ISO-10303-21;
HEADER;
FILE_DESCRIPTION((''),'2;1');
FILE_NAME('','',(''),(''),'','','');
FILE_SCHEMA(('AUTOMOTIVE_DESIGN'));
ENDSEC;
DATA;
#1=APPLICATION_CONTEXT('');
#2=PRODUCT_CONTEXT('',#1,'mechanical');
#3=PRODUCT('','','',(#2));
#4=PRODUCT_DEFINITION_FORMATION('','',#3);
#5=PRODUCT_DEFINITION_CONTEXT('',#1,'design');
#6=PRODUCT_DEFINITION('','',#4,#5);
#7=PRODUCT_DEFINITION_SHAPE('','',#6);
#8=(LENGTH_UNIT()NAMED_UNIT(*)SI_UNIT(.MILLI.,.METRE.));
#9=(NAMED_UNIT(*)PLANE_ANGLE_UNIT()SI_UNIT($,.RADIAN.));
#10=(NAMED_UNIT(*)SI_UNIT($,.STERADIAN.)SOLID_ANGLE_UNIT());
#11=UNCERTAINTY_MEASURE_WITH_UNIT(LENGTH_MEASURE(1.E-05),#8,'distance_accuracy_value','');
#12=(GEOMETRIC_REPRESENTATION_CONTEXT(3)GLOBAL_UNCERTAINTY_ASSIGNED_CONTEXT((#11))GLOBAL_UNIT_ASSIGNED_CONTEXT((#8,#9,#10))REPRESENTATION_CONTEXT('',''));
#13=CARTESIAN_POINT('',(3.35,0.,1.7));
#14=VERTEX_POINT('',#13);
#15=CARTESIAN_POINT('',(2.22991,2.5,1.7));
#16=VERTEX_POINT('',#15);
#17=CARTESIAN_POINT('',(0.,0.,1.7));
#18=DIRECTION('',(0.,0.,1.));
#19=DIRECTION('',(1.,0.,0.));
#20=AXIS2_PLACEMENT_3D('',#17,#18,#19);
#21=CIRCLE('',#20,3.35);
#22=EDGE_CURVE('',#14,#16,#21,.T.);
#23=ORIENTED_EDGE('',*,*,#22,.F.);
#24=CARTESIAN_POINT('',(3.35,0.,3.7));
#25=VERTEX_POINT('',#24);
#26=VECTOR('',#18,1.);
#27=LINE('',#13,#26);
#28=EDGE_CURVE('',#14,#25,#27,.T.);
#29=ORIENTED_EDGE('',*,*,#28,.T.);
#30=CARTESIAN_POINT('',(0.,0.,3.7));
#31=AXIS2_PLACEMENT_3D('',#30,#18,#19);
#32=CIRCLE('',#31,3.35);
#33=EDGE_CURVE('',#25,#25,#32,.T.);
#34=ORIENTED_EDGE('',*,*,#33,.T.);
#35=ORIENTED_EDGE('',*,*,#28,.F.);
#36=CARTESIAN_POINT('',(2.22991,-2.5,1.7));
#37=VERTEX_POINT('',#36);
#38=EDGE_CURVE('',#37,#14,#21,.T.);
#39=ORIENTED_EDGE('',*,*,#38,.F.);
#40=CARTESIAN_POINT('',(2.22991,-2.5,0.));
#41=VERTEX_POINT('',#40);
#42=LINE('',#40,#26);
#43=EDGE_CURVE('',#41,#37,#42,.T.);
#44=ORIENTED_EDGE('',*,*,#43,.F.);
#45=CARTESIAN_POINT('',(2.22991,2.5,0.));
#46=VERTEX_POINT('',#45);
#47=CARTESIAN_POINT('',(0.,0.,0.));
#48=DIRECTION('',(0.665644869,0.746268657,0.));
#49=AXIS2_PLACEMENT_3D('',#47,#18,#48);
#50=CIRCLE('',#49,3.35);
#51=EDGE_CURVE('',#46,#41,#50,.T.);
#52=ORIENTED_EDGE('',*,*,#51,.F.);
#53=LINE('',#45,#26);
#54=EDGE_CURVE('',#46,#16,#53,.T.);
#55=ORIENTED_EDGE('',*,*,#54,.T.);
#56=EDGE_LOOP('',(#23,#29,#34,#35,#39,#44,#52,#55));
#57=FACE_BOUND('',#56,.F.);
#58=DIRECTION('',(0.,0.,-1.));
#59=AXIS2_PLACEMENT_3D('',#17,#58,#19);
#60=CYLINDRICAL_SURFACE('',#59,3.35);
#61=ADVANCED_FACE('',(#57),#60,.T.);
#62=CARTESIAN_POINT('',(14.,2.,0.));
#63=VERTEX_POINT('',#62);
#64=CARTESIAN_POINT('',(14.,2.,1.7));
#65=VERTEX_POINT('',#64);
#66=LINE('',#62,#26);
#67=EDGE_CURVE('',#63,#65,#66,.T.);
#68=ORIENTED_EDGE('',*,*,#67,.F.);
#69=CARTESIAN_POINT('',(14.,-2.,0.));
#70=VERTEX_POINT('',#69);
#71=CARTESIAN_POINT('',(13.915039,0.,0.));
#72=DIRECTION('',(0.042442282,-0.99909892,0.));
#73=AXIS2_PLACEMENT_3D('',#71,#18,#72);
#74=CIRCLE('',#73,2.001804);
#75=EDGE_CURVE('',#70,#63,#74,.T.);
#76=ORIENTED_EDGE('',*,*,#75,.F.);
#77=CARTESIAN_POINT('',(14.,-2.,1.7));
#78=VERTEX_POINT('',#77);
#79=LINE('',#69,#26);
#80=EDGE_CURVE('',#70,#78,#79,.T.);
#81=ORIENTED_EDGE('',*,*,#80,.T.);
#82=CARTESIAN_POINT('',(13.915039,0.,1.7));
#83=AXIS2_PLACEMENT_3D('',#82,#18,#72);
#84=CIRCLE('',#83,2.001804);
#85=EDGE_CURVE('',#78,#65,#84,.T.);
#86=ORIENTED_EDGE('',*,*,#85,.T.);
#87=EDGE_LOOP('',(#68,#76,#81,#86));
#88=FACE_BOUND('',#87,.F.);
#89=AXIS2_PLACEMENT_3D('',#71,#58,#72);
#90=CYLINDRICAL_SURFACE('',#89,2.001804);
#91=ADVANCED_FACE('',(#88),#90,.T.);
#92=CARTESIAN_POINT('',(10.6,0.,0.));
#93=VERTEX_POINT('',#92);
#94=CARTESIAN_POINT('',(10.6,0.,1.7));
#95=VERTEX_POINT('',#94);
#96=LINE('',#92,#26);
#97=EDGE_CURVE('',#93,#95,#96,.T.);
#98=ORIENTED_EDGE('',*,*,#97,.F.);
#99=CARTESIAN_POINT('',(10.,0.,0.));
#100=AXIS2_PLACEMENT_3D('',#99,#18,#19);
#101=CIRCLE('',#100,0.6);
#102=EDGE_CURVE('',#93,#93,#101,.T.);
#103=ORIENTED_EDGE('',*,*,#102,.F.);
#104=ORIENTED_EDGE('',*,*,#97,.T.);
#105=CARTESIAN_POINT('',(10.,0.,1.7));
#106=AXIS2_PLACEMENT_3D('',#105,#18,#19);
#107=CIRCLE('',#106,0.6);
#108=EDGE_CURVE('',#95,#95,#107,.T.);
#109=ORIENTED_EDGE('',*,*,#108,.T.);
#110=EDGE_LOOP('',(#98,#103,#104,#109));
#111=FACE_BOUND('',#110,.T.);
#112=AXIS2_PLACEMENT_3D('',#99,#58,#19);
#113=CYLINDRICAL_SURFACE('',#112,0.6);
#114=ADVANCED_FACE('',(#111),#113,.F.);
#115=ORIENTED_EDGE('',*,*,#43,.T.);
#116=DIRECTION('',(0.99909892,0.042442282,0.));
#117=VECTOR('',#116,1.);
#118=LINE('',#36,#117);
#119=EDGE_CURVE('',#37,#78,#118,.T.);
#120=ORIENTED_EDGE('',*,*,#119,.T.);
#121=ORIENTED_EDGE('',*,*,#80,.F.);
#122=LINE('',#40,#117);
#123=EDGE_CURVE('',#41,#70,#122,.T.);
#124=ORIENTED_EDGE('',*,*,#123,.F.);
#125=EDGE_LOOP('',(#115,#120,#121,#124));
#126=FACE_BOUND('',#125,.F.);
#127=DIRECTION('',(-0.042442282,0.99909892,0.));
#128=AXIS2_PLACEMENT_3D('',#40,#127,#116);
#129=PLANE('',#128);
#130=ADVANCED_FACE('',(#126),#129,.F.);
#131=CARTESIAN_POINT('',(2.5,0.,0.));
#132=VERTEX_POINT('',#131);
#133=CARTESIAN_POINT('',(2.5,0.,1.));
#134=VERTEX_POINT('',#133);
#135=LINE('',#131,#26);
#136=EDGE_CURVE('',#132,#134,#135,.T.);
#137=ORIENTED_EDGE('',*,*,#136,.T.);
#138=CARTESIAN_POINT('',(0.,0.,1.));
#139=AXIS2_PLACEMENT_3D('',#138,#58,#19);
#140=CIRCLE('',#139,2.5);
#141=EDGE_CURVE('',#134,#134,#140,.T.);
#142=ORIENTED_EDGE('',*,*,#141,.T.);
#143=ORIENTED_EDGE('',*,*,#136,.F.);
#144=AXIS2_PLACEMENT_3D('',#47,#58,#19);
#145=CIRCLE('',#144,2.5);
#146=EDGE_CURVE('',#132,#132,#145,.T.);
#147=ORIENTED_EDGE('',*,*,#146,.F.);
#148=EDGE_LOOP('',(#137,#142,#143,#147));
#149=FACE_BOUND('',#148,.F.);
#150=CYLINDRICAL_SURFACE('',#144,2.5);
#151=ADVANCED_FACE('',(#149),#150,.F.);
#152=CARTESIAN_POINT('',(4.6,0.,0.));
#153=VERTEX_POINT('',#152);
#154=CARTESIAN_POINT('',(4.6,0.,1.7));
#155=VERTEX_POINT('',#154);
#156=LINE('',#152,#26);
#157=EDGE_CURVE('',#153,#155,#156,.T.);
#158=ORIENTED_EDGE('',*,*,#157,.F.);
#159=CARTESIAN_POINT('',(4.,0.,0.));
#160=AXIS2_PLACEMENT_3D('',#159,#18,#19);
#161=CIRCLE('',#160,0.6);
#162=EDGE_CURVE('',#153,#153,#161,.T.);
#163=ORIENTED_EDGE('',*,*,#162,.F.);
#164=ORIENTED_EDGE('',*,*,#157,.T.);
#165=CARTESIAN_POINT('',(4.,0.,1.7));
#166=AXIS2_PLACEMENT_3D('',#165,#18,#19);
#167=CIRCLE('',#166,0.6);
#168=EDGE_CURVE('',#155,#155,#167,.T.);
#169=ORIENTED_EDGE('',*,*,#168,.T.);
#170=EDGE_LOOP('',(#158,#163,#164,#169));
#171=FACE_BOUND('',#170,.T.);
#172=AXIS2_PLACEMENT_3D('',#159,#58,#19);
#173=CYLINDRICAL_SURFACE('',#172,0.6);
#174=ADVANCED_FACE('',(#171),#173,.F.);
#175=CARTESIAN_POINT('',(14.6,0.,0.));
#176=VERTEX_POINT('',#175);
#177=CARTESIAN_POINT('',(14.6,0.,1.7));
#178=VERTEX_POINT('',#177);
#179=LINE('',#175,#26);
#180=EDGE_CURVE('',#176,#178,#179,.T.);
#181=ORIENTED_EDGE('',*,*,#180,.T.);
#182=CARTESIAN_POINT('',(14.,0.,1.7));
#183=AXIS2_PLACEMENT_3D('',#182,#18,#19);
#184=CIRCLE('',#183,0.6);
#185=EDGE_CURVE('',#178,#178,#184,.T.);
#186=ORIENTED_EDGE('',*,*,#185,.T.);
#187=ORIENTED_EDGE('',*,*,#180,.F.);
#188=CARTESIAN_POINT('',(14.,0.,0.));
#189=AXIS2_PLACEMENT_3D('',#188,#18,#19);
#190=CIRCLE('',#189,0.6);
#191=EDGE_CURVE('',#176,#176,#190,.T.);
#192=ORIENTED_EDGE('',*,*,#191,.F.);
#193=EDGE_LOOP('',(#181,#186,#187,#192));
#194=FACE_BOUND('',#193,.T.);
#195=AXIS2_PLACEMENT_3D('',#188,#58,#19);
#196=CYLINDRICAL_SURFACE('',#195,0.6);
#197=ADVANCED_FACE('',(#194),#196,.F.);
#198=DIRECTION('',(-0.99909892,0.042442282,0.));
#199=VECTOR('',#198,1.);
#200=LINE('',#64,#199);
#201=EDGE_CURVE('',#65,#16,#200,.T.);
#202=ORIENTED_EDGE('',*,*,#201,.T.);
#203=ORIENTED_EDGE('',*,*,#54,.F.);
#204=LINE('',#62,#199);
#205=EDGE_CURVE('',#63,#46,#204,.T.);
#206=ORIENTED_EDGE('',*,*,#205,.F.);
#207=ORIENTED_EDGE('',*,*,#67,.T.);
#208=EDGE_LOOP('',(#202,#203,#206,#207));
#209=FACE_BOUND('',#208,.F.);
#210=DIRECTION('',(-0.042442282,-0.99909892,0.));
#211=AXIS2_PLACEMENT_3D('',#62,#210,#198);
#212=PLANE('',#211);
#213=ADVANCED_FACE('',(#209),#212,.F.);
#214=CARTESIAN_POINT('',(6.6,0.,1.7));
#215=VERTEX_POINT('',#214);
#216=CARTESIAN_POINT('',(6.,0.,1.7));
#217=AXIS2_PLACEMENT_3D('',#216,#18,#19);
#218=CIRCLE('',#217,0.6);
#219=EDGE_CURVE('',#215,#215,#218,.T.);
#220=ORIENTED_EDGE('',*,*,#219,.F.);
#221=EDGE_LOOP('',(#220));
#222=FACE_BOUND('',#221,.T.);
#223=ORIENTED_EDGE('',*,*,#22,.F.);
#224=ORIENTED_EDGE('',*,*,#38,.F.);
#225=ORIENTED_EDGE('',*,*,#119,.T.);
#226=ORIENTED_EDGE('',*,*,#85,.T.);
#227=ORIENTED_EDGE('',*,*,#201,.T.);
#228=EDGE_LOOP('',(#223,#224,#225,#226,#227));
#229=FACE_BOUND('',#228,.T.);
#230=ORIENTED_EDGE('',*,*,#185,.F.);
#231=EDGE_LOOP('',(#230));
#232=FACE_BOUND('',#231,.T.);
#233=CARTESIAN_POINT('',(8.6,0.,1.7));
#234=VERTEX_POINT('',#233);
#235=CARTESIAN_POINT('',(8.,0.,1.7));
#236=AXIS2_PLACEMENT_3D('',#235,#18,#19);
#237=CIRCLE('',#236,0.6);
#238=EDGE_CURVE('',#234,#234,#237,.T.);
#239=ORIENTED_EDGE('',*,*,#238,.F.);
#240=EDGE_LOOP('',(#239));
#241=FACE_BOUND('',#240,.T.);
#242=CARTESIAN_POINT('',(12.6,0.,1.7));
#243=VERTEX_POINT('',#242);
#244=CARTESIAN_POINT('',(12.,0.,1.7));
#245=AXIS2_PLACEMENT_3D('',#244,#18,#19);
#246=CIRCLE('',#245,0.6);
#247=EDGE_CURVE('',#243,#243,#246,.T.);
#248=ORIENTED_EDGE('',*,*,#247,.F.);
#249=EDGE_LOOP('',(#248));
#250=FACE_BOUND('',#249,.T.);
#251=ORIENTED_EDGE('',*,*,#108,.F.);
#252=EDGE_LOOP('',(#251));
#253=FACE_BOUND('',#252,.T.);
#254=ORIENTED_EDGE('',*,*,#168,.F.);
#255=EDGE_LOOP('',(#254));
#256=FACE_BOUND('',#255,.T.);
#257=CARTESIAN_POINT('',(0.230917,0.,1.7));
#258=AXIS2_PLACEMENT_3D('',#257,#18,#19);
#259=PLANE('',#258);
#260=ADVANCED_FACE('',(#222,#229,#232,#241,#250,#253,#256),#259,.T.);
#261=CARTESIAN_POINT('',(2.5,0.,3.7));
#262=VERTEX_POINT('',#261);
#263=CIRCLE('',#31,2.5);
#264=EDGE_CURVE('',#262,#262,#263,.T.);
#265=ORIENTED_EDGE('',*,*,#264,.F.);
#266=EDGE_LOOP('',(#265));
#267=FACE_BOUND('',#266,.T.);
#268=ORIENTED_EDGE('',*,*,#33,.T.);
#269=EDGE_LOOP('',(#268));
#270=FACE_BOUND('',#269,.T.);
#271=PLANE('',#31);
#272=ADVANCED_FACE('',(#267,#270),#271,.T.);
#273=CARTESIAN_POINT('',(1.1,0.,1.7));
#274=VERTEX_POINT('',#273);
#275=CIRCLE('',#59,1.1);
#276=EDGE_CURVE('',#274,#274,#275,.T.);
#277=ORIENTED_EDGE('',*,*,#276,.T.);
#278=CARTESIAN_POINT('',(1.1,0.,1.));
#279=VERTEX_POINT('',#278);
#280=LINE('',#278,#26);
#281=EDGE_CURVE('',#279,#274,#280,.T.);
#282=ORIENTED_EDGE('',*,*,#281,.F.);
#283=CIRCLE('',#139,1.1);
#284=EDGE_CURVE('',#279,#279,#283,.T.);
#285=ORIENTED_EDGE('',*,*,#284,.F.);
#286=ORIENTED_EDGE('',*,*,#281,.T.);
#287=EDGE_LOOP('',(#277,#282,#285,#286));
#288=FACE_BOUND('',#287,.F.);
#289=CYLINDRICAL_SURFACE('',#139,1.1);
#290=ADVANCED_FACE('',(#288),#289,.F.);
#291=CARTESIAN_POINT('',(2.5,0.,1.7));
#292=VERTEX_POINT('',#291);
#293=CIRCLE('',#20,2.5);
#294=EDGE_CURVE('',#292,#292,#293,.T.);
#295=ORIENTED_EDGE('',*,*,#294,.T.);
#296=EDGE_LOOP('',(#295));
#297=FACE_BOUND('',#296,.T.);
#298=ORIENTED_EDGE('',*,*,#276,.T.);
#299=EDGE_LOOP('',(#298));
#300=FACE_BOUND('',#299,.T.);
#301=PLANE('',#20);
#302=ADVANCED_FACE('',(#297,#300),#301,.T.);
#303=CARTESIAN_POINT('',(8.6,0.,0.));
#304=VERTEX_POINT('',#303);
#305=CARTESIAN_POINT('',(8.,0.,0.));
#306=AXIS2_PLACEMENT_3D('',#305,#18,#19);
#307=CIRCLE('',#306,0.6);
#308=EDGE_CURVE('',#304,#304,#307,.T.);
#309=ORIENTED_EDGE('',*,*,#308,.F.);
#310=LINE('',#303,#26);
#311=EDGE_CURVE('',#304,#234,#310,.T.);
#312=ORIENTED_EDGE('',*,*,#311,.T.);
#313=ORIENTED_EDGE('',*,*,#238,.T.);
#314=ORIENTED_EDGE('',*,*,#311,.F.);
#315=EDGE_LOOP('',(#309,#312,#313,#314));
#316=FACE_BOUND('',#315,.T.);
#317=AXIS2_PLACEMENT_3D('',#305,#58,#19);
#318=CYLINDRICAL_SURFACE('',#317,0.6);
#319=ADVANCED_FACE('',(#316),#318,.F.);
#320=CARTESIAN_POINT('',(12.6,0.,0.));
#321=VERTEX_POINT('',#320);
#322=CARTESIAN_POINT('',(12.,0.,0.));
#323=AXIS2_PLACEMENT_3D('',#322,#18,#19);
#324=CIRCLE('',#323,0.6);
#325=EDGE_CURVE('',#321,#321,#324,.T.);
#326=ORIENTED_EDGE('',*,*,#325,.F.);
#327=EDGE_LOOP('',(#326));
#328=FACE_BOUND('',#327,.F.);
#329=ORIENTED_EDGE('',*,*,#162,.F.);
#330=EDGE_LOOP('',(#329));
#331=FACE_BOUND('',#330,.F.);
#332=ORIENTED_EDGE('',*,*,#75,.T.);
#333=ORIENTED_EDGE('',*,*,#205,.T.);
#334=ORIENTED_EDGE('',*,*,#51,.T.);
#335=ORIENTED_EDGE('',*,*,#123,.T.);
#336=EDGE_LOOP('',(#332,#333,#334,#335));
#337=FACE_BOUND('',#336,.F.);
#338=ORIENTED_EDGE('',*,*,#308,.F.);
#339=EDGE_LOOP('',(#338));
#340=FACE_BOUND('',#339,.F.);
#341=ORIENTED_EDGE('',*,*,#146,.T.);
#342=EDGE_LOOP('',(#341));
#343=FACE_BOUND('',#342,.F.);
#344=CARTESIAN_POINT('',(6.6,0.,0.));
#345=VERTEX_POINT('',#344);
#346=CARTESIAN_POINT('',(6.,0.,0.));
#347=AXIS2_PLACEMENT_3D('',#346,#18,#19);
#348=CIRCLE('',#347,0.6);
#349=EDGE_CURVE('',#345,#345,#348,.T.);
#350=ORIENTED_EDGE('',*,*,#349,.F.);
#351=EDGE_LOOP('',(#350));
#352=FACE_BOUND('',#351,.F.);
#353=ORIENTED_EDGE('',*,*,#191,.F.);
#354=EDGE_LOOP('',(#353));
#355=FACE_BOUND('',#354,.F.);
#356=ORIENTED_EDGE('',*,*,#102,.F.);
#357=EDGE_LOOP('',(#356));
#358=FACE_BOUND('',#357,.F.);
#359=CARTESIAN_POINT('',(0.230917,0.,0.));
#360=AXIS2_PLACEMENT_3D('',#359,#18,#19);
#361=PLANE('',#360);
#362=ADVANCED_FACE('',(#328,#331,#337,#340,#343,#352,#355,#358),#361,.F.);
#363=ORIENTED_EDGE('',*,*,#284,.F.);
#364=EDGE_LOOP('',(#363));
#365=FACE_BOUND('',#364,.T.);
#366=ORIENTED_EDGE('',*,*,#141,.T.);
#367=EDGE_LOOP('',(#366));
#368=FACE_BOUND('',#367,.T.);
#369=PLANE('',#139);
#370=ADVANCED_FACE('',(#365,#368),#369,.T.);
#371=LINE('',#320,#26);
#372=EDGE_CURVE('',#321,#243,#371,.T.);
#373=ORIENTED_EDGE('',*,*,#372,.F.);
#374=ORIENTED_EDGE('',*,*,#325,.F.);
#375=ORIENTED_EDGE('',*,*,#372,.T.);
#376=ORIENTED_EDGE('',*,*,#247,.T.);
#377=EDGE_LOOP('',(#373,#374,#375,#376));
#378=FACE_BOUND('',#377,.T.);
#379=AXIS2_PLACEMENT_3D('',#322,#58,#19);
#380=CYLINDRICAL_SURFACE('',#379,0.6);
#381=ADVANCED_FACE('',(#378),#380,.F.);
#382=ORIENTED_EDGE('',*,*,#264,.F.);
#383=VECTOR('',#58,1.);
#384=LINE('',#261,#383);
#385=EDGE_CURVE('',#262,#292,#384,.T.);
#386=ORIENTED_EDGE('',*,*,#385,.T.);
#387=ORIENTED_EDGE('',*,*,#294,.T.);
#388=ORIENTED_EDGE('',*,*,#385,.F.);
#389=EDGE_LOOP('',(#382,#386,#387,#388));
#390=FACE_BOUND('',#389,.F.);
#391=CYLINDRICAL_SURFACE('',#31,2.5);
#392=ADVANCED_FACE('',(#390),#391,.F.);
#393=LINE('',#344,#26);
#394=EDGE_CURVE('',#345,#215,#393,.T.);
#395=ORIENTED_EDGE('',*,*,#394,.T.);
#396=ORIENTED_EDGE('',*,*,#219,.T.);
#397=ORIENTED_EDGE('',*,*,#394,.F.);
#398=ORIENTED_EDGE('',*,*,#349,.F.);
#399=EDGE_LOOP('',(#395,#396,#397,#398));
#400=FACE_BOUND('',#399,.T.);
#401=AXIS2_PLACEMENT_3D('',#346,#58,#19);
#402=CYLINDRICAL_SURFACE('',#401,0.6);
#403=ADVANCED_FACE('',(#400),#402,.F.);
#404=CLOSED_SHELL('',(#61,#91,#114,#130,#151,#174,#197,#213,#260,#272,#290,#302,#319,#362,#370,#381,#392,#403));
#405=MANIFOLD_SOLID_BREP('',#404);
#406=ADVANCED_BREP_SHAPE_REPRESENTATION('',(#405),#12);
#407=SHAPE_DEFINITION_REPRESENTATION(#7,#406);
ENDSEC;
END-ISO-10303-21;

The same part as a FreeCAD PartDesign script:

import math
import FreeCAD as App
import Part
import Sketcher

doc = App.newDocument("Part")
body = doc.addObject("PartDesign::Body", "Body")

sketch1 = body.newObject("Sketcher::SketchObject", "Sketch")
sketch1.AttachmentSupport = (doc.getObject("XY_Plane"), [""])
sketch1.MapMode = "FlatFace"
sketch1.addGeometry(Part.ArcOfCircle(Part.Circle(App.Vector(0, 0, 0), App.Vector(0, 0, 1), 3.4), math.radians(48), math.radians(312)), False)
sketch1.addGeometry(Part.LineSegment(App.Vector(2.2, -2.5, 0), App.Vector(14, -2, 0)), False)
sketch1.addGeometry(Part.ArcOfCircle(Part.Circle(App.Vector(13.9, 0, 0), App.Vector(0, 0, 1), 2), math.radians(-88), math.radians(88)), False)
sketch1.addGeometry(Part.LineSegment(App.Vector(14, 2, 0), App.Vector(2.2, 2.5, 0)), False)
sketch1.addGeometry(Part.Circle(App.Vector(4, 0, 0), App.Vector(0, 0, 1), 0.6), False)
sketch1.addGeometry(Part.Circle(App.Vector(6, 0, 0), App.Vector(0, 0, 1), 0.6), False)
sketch1.addGeometry(Part.Circle(App.Vector(8, 0, 0), App.Vector(0, 0, 1), 0.6), False)
sketch1.addGeometry(Part.Circle(App.Vector(10, 0, 0), App.Vector(0, 0, 1), 0.6), False)
sketch1.addGeometry(Part.Circle(App.Vector(12, 0, 0), App.Vector(0, 0, 1), 0.6), False)
sketch1.addGeometry(Part.Circle(App.Vector(14, 0, 0), App.Vector(0, 0, 1), 0.6), False)
sketch1.addConstraint(Sketcher.Constraint("Coincident", 0, 2, 1, 1))
sketch1.addConstraint(Sketcher.Constraint("Tangent", 1, 2, 2, 1))
sketch1.addConstraint(Sketcher.Constraint("Tangent", 2, 2, 3, 1))
sketch1.addConstraint(Sketcher.Constraint("Coincident", 3, 2, 0, 1))
sketch1.addConstraint(Sketcher.Constraint("Coincident", 0, 3, -1, 1))
sketch1.addConstraint(Sketcher.Constraint("Equal", 4, 5))
sketch1.addConstraint(Sketcher.Constraint("Equal", 5, 6))
sketch1.addConstraint(Sketcher.Constraint("Equal", 6, 7))
sketch1.addConstraint(Sketcher.Constraint("Equal", 7, 8))
sketch1.addConstraint(Sketcher.Constraint("Equal", 8, 9))
sketch1.addConstraint(Sketcher.Constraint("Symmetric", 1, 2, 2, 2, -1))
sketch1.addConstraint(Sketcher.Constraint("PointOnObject", 4, 3, -1))
sketch1.addConstraint(Sketcher.Constraint("PointOnObject", 5, 3, -1))
sketch1.addConstraint(Sketcher.Constraint("PointOnObject", 6, 3, -1))
sketch1.addConstraint(Sketcher.Constraint("PointOnObject", 7, 3, -1))
sketch1.addConstraint(Sketcher.Constraint("PointOnObject", 8, 3, -1))
sketch1.addConstraint(Sketcher.Constraint("PointOnObject", 9, 3, -1))
sketch1.addConstraint(Sketcher.Constraint("Vertical", 9, 3, 1, 2))
sketch1.addConstraint(Sketcher.Constraint("Diameter", 4, 1.2))
sketch1.addConstraint(Sketcher.Constraint("Radius", 0, 3.35))
sketch1.addConstraint(Sketcher.Constraint("DistanceX", -1, 1, 4, 3, 4.0))
sketch1.addConstraint(Sketcher.Constraint("DistanceX", -1, 1, 5, 3, 6.0))
sketch1.addConstraint(Sketcher.Constraint("DistanceX", -1, 1, 6, 3, 8.0))
sketch1.addConstraint(Sketcher.Constraint("DistanceX", -1, 1, 7, 3, 10.0))
sketch1.addConstraint(Sketcher.Constraint("DistanceX", -1, 1, 8, 3, 12.0))
sketch1.addConstraint(Sketcher.Constraint("DistanceX", -1, 1, 9, 3, 14.0))
sketch1.addConstraint(Sketcher.Constraint("DistanceY", 1, 2, -1, 1, 2.0))
sketch1.addConstraint(Sketcher.Constraint("DistanceY", 0, 2, 3, 2, 5.0))
pad1 = body.newObject("PartDesign::Pad", "Pad")
pad1.Profile = sketch1
pad1.Length = 1.7

sketch2 = body.newObject("Sketcher::SketchObject", "Sketch001")
sketch2.AttachmentSupport = (doc.getObject("XY_Plane"), [""])
sketch2.MapMode = "FlatFace"
sketch2.AttachmentOffset = App.Placement(App.Vector(0, 0, 1.7), App.Rotation())
sketch2.addGeometry(Part.Circle(App.Vector(0, 0, 0), App.Vector(0, 0, 1), 3.4), False)
sketch2.addConstraint(Sketcher.Constraint("Coincident", 0, 3, -1, 1))
sketch2.addConstraint(Sketcher.Constraint("Diameter", 0, 6.7))
pad2 = body.newObject("PartDesign::Pad", "Pad001")
pad2.Profile = sketch2
pad2.Length = 2

sketch3 = body.newObject("Sketcher::SketchObject", "Sketch002")
sketch3.AttachmentSupport = (doc.getObject("XY_Plane"), [""])
sketch3.MapMode = "FlatFace"
sketch3.addGeometry(Part.Circle(App.Vector(0, 0, 0), App.Vector(0, 0, 1), 2.5), False)
sketch3.addConstraint(Sketcher.Constraint("Coincident", 0, 3, -1, 1))
sketch3.addConstraint(Sketcher.Constraint("Diameter", 0, 5.0))
pocket1 = body.newObject("PartDesign::Pocket", "Pocket")
pocket1.Profile = sketch3
pocket1.Length = 1
pocket1.Reversed = True

sketch4 = body.newObject("Sketcher::SketchObject", "Sketch003")
sketch4.AttachmentSupport = (doc.getObject("XY_Plane"), [""])
sketch4.MapMode = "FlatFace"
sketch4.AttachmentOffset = App.Placement(App.Vector(0, 0, 1), App.Rotation())
sketch4.addGeometry(Part.Circle(App.Vector(0, 0, 0), App.Vector(0, 0, 1), 1.1), False)
sketch4.addConstraint(Sketcher.Constraint("Coincident", 0, 3, -1, 1))
sketch4.addConstraint(Sketcher.Constraint("Diameter", 0, 2.2))
pocket2 = body.newObject("PartDesign::Pocket", "Pocket001")
pocket2.Profile = sketch4
pocket2.Type = "ThroughAll"
pocket2.Reversed = True

sketch5 = body.newObject("Sketcher::SketchObject", "Sketch004")
sketch5.AttachmentSupport = (doc.getObject("XY_Plane"), [""])
sketch5.MapMode = "FlatFace"
sketch5.AttachmentOffset = App.Placement(App.Vector(0, 0, 3.7), App.Rotation())
sketch5.addGeometry(Part.Circle(App.Vector(0, 0, 0), App.Vector(0, 0, 1), 2.5), False)
sketch5.addConstraint(Sketcher.Constraint("Coincident", 0, 3, -1, 1))
sketch5.addConstraint(Sketcher.Constraint("Diameter", 0, 5.0))
pocket3 = body.newObject("PartDesign::Pocket", "Pocket002")
pocket3.Profile = sketch5
pocket3.Length = 2

doc.recompute()
